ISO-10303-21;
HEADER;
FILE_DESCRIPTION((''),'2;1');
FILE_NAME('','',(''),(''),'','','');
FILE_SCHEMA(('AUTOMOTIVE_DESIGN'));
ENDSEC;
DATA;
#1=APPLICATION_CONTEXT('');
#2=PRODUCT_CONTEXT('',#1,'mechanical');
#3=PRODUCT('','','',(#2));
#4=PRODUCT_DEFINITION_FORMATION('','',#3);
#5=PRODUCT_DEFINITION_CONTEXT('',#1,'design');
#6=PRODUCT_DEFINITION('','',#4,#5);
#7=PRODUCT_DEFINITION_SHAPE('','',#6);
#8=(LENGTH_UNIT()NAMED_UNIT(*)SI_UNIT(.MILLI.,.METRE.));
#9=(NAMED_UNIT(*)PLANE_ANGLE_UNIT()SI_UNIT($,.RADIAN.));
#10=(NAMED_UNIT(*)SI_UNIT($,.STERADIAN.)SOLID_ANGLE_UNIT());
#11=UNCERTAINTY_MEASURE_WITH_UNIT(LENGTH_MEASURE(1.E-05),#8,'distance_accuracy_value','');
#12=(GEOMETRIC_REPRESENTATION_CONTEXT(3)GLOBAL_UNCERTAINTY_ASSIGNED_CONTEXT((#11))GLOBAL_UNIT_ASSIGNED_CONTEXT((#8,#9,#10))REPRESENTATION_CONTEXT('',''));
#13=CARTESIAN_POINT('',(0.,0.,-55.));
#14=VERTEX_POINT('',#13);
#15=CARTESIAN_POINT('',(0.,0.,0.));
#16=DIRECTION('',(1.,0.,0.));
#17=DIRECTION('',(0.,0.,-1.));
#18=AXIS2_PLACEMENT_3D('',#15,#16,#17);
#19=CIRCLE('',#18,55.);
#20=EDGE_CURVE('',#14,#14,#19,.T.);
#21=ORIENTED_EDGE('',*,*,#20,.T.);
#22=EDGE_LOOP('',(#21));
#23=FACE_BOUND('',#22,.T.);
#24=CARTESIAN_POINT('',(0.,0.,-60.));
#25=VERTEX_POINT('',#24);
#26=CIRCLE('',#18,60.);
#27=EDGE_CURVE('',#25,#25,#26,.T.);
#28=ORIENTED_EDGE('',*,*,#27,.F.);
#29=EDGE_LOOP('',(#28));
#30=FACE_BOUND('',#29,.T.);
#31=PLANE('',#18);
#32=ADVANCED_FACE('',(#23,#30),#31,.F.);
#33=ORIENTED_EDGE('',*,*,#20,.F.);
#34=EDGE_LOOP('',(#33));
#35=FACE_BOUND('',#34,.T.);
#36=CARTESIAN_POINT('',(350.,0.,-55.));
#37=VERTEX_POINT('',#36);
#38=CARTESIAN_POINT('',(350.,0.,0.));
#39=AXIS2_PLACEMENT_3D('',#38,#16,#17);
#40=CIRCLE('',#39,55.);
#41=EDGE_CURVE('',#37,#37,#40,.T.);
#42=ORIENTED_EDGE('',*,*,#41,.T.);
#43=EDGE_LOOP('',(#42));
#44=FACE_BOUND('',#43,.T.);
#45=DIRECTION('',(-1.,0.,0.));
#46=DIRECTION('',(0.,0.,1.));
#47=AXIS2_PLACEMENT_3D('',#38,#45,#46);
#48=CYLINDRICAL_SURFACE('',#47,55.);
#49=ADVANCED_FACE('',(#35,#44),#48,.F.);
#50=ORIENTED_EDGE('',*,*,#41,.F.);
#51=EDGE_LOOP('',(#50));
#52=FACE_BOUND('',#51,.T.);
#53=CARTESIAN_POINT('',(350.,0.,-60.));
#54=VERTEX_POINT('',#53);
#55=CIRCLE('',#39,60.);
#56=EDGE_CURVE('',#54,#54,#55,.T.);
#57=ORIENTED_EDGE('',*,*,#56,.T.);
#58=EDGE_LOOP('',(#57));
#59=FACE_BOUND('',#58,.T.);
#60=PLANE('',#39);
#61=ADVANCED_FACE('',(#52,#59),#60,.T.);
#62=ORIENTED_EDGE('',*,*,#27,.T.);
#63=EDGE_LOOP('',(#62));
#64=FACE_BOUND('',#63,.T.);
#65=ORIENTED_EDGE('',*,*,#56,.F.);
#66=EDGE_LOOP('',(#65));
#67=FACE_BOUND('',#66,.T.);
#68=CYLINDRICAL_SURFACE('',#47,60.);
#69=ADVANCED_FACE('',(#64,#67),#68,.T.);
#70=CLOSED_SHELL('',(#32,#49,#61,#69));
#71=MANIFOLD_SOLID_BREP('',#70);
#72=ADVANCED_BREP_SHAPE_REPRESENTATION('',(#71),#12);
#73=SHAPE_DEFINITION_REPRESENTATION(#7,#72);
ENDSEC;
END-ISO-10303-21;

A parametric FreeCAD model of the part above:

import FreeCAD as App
import Part
import Sketcher

V = App.Vector
Q = App.Units.Quantity

doc = App.newDocument("Part")
body = doc.addObject("PartDesign::Body", "Body")

# Sketch on YZ plane
sketch1 = body.newObject("Sketcher::SketchObject", "Sketch")
sketch1.AttachmentSupport = (doc.getObject("YZ_Plane"), [""])
sketch1.MapMode = "FlatFace"
sketch1.addGeometry([
    Part.Circle(V(0, 0, 0), V(0, 0, 1), 60),
    Part.Circle(V(0, 0, 0), V(0, 0, 1), 55),
], False)
sketch1.addConstraint([
    Sketcher.Constraint("Coincident", 0, 3, -1, 1),
    Sketcher.Constraint("Coincident", 1, 3, -1, 1),
    Sketcher.Constraint("Diameter", 0, Q("120 mm")),
    Sketcher.Constraint("Diameter", 1, Q("110 mm")),
])
pad1 = body.newObject("PartDesign::Pad", "Pad")
pad1.Profile = sketch1
pad1.Length = 350

doc.recompute()
